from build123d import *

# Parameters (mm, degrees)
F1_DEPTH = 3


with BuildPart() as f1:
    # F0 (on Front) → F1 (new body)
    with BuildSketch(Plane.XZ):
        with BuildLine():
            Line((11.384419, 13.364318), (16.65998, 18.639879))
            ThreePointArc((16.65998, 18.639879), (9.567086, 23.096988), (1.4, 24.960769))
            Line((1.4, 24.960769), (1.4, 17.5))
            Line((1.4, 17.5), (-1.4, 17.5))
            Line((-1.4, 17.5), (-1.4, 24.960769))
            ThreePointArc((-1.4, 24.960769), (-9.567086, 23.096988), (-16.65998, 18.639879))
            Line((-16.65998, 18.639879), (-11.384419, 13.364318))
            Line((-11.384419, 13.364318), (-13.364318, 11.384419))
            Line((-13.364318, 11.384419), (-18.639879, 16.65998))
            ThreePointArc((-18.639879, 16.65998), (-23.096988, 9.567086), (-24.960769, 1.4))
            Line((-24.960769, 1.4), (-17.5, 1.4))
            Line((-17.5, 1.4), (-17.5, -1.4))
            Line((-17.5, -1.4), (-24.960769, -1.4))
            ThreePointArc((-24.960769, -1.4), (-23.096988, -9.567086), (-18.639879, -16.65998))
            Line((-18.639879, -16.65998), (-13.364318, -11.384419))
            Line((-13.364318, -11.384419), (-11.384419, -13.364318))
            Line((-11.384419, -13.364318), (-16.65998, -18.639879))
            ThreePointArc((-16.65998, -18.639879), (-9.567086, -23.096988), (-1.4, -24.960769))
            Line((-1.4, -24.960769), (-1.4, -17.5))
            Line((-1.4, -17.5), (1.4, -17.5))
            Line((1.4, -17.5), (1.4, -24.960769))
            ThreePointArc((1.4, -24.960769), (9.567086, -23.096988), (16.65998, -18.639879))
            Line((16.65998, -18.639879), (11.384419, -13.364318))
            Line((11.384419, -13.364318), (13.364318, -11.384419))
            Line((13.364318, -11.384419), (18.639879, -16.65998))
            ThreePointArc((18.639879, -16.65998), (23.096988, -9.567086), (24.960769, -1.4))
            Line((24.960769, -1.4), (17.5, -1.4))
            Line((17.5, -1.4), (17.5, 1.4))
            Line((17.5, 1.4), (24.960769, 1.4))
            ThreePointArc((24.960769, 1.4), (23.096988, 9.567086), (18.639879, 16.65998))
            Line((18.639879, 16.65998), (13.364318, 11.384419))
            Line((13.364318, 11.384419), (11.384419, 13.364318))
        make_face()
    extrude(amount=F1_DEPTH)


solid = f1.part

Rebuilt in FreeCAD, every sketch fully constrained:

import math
import FreeCAD as App
import Part
import Sketcher
from FreeCAD import Vector

doc = App.newDocument("Part")
body = doc.addObject("PartDesign::Body", "Body")

sketch1 = body.newObject("Sketcher::SketchObject", "Sketch")
sketch1.AttachmentSupport = (doc.getObject("XZ_Plane"), [""])
sketch1.MapMode = "FlatFace"
sketch1.addGeometry([
    Part.LineSegment(Vector(11.384419, 13.364318, 0), Vector(16.65998, 18.639879, 0)),
    Part.ArcOfCircle(Part.Circle(Vector(-0.000001, -0.000006, 0), Vector(0, 0, 1), 25.000006), math.radians(48.21025), math.radians(86.789755)),
    Part.LineSegment(Vector(1.4, 24.960769, 0), Vector(1.4, 17.5, 0)),
    Part.LineSegment(Vector(1.4, 17.5, 0), Vector(-1.4, 17.5, 0)),
    Part.LineSegment(Vector(-1.4, 17.5, 0), Vector(-1.4, 24.960769, 0)),
    Part.ArcOfCircle(Part.Circle(Vector(0.000001, -0.000006, 0), Vector(0, 0, 1), 25.000006), math.radians(93.210245), math.radians(131.78975)),
    Part.LineSegment(Vector(-16.65998, 18.639879, 0), Vector(-11.384419, 13.364318, 0)),
    Part.LineSegment(Vector(-11.384419, 13.364318, 0), Vector(-13.364318, 11.384419, 0)),
    Part.LineSegment(Vector(-13.364318, 11.384419, 0), Vector(-18.639879, 16.65998, 0)),
    Part.ArcOfCircle(Part.Circle(Vector(0.000006, -0.000001, 0), Vector(0, 0, 1), 25.000006), math.radians(138.21025), math.radians(176.789755)),
    Part.LineSegment(Vector(-24.960769, 1.4, 0), Vector(-17.5, 1.4, 0)),
    Part.LineSegment(Vector(-17.5, 1.4, 0), Vector(-17.5, -1.4, 0)),
    Part.LineSegment(Vector(-17.5, -1.4, 0), Vector(-24.960769, -1.4, 0)),
    Part.ArcOfCircle(Part.Circle(Vector(0.000006, 0.000001, 0), Vector(0, 0, 1), 25.000006), math.radians(-176.789755), math.radians(-138.21025)),
    Part.LineSegment(Vector(-18.639879, -16.65998, 0), Vector(-13.364318, -11.384419, 0)),
    Part.LineSegment(Vector(-13.364318, -11.384419, 0), Vector(-11.384419, -13.364318, 0)),
    Part.LineSegment(Vector(-11.384419, -13.364318, 0), Vector(-16.65998, -18.639879, 0)),
    Part.ArcOfCircle(Part.Circle(Vector(0.000001, 0.000006, 0), Vector(0, 0, 1), 25.000006), math.radians(-131.78975), math.radians(-93.210245)),
    Part.LineSegment(Vector(-1.4, -24.960769, 0), Vector(-1.4, -17.5, 0)),
    Part.LineSegment(Vector(-1.4, -17.5, 0), Vector(1.4, -17.5, 0)),
    Part.LineSegment(Vector(1.4, -17.5, 0), Vector(1.4, -24.960769, 0)),
    Part.ArcOfCircle(Part.Circle(Vector(-0.000001, 0.000006, 0), Vector(0, 0, 1), 25.000006), math.radians(-86.789755), math.radians(-48.21025)),
    Part.LineSegment(Vector(16.65998, -18.639879, 0), Vector(11.384419, -13.364318, 0)),
    Part.LineSegment(Vector(11.384419, -13.364318, 0), Vector(13.364318, -11.384419, 0)),
    Part.LineSegment(Vector(13.364318, -11.384419, 0), Vector(18.639879, -16.65998, 0)),
    Part.ArcOfCircle(Part.Circle(Vector(-0.000006, 0.000001, 0), Vector(0, 0, 1), 25.000006), math.radians(-41.78975), math.radians(-3.210245)),
    Part.LineSegment(Vector(24.960769, -1.4, 0), Vector(17.5, -1.4, 0)),
    Part.LineSegment(Vector(17.5, -1.4, 0), Vector(17.5, 1.4, 0)),
    Part.LineSegment(Vector(17.5, 1.4, 0), Vector(24.960769, 1.4, 0)),
    Part.ArcOfCircle(Part.Circle(Vector(-0.000006, -0.000001, 0), Vector(0, 0, 1), 25.000006), math.radians(3.210245), math.radians(41.78975)),
    Part.LineSegment(Vector(18.639879, 16.65998, 0), Vector(13.364318, 11.384419, 0)),
    Part.LineSegment(Vector(13.364318, 11.384419, 0), Vector(11.384419, 13.364318, 0)),
], False)
sketch1.addConstraint([
    Sketcher.Constraint("Coincident", 0, 2, 1, 1),
    Sketcher.Constraint("Coincident", 1, 2, 2, 1),
    Sketcher.Constraint("Coincident", 2, 2, 3, 1),
    Sketcher.Constraint("Coincident", 3, 2, 4, 1),
    Sketcher.Constraint("Coincident", 4, 2, 5, 1),
    Sketcher.Constraint("Coincident", 5, 2, 6, 1),
    Sketcher.Constraint("Coincident", 6, 2, 7, 1),
    Sketcher.Constraint("Coincident", 7, 2, 8, 1),
    Sketcher.Constraint("Coincident", 8, 2, 9, 1),
    Sketcher.Constraint("Coincident", 9, 2, 10, 1),
    Sketcher.Constraint("Coincident", 10, 2, 11, 1),
    Sketcher.Constraint("Coincident", 11, 2, 12, 1),
    Sketcher.Constraint("Coincident", 12, 2, 13, 1),
    Sketcher.Constraint("Coincident", 13, 2, 14, 1),
    Sketcher.Constraint("Coincident", 14, 2, 15, 1),
    Sketcher.Constraint("Coincident", 15, 2, 16, 1),
    Sketcher.Constraint("Coincident", 16, 2, 17, 1),
    Sketcher.Constraint("Coincident", 17, 2, 18, 1),
    Sketcher.Constraint("Coincident", 18, 2, 19, 1),
    Sketcher.Constraint("Coincident", 19, 2, 20, 1),
    Sketcher.Constraint("Coincident", 20, 2, 21, 1),
    Sketcher.Constraint("Coincident", 21, 2, 22, 1),
    Sketcher.Constraint("Coincident", 22, 2, 23, 1),
    Sketcher.Constraint("Coincident", 23, 2, 24, 1),
    Sketcher.Constraint("Coincident", 24, 2, 25, 1),
    Sketcher.Constraint("Coincident", 25, 2, 26, 1),
    Sketcher.Constraint("Coincident", 26, 2, 27, 1),
    Sketcher.Constraint("Coincident", 27, 2, 28, 1),
    Sketcher.Constraint("Coincident", 28, 2, 29, 1),
    Sketcher.Constraint("Coincident", 29, 2, 30, 1),
    Sketcher.Constraint("Coincident", 30, 2, 31, 1),
    Sketcher.Constraint("Coincident", 31, 2, 0, 1),
    Sketcher.Constraint("Vertical", 2),
    Sketcher.Constraint("Horizontal", 3),
    Sketcher.Constraint("Vertical", 4),
    Sketcher.Constraint("Horizontal", 10),
    Sketcher.Constraint("Vertical", 11),
    Sketcher.Constraint("Horizontal", 12),
    Sketcher.Constraint("Vertical", 18),
    Sketcher.Constraint("Horizontal", 19),
    Sketcher.Constraint("Vertical", 20),
    Sketcher.Constraint("Horizontal", 26),
    Sketcher.Constraint("Vertical", 27),
    Sketcher.Constraint("Horizontal", 28),
    Sketcher.Constraint("Coincident", 1, 3, -1, 1),
    Sketcher.Constraint("Coincident", 5, 3, -1, 1),
    Sketcher.Constraint("Coincident", 9, 3, -1, 1),
    Sketcher.Constraint("Coincident", 13, 3, -1, 1),
    Sketcher.Constraint("Coincident", 17, 3, -1, 1),
    Sketcher.Constraint("Coincident", 21, 3, -1, 1),
    Sketcher.Constraint("Coincident", 25, 3, -1, 1),
    Sketcher.Constraint("Coincident", 29, 3, -1, 1),
    Sketcher.Constraint("Equal", 1, 5),
    Sketcher.Constraint("Equal", 5, 9),
    Sketcher.Constraint("Equal", 9, 13),
    Sketcher.Constraint("Equal", 13, 17),
    Sketcher.Constraint("Equal", 17, 21),
    Sketcher.Constraint("Equal", 21, 25),
    Sketcher.Constraint("Equal", 25, 29),
    Sketcher.Constraint("Symmetric", 2, 2, 18, 2, -1, 1),
    Sketcher.Constraint("Symmetric", 6, 2, 22, 2, -1, 1),
    Sketcher.Constraint("Symmetric", 7, 2, 23, 2, -1, 1),
    Sketcher.Constraint("Symmetric", 10, 2, 26, 2, -1, 1),
    Sketcher.Constraint("Symmetric", 14, 2, 30, 2, -1, 1),
    Sketcher.Constraint("Symmetric", 15, 2, 31, 2, -1, 1),
    Sketcher.Constraint("Symmetric", 15, 2, 22, 2, -2),
    Sketcher.Constraint("Symmetric", 14, 2, 23, 2, -2),
    Sketcher.Constraint("Perpendicular", 0, 6),
    Sketcher.Constraint("Perpendicular", 6, 7),
    Sketcher.Constraint("Perpendicular", 7, 8),
    Sketcher.Constraint("Perpendicular", 8, 14),
    Sketcher.Constraint("Perpendicular", 14, 15),
    Sketcher.Constraint("Perpendicular", 15, 16),
    Sketcher.Constraint("Perpendicular", 16, 22),
    Sketcher.Constraint("Perpendicular", 23, 24),
    Sketcher.Constraint("Perpendicular", 24, 30),
    Sketcher.Constraint("Horizontal", 1, 2, 4, 2),
    Sketcher.Constraint("Horizontal", 17, 2, 20, 2),
    Sketcher.Constraint("Horizontal", 12, 2, 25, 2),
    Sketcher.Constraint("Horizontal", 10, 2, 27, 2),
    Sketcher.Constraint("Equal", 28, 2),
    Sketcher.Constraint("Equal", 19, 11),
    Sketcher.Constraint("Equal", 6, 8),
    Sketcher.Constraint("DistanceX", 3, 2, 3, 1, 2.8),
    Sketcher.Constraint("Distance", 7, 2.8),
    Sketcher.Constraint("DistanceY", -1, 1, 2, 2, 17.5),
    Sketcher.Constraint("Radius", 1, 25.000006),
    Sketcher.Constraint("Distance", 0, 7.46077),
])
pad1 = body.newObject("PartDesign::Pad", "Pad")
pad1.Profile = sketch1
pad1.Length = 3

doc.recompute()
